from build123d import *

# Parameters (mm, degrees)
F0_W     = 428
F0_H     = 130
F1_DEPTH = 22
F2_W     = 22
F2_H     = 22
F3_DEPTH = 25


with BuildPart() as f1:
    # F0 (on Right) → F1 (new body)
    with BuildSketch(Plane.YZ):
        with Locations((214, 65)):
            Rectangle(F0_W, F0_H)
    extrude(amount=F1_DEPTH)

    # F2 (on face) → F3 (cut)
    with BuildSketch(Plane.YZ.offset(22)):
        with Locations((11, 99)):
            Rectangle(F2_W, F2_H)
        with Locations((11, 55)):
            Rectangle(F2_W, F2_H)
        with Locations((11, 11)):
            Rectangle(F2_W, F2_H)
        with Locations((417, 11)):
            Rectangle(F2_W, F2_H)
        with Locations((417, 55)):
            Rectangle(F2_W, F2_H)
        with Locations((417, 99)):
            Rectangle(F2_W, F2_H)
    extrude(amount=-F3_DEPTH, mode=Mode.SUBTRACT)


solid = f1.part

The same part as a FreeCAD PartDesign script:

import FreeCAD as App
import Part
import Sketcher

V = App.Vector
Q = App.Units.Quantity


def add_polygon(sketch, points):
    """Adds a closed chain of lines whose ends are joined by coincident constraints."""
    first, n = sketch.GeometryCount, len(points)
    for a, b in zip(points, points[1:] + points[:1]):
        sketch.addGeometry(Part.LineSegment(App.Vector(*a, 0), App.Vector(*b, 0)), False)
    for i in range(n):
        sketch.addConstraint(Sketcher.Constraint("Coincident", first + i, 2, first + (i + 1) % n, 1))

doc = App.newDocument("Part")
body = doc.addObject("PartDesign::Body", "Body")

sketch1 = body.newObject("Sketcher::SketchObject", "Sketch")
sketch1.AttachmentSupport = (doc.getObject("YZ_Plane"), [""])
sketch1.MapMode = "FlatFace"
add_polygon(sketch1, [(0, 130), (0, 0), (428, 0), (428, 130)])
sketch1.addConstraint(Sketcher.Constraint("Vertical", 0))
sketch1.addConstraint(Sketcher.Constraint("Horizontal", 1))
sketch1.addConstraint(Sketcher.Constraint("Vertical", 2))
sketch1.addConstraint(Sketcher.Constraint("Horizontal", 3))
sketch1.addConstraint(Sketcher.Constraint("Coincident", 0, 2, -1, 1))
sketch1.addConstraint(Sketcher.Constraint("DistanceX", 1, 1, 1, 2, Q("428 mm")))
sketch1.addConstraint(Sketcher.Constraint("DistanceY", 0, 2, 0, 1, Q("130 mm")))
pad1 = body.newObject("PartDesign::Pad", "Pad")
pad1.Profile = sketch1
pad1.Length = 22

sketch2 = body.newObject("Sketcher::SketchObject", "Sketch001")
sketch2.AttachmentSupport = (doc.getObject("YZ_Plane"), [""])
sketch2.MapMode = "FlatFace"
sketch2.AttachmentOffset = App.Placement(V(0, 0, 22), App.Rotation())
add_polygon(sketch2, [(0, 110), (0, 88), (22, 88), (22, 110)])
add_polygon(sketch2, [(0, 66), (0, 44), (22, 44), (22, 66)])
add_polygon(sketch2, [(0, 22), (0, 0), (22, 0), (22, 22)])
add_polygon(sketch2, [(406, 22), (406, 0), (428, 0), (428, 22)])
add_polygon(sketch2, [(406, 66), (406, 44), (428, 44), (428, 66)])
add_polygon(sketch2, [(406, 110), (406, 88), (428, 88), (428, 110)])
sketch2.addConstraint(Sketcher.Constraint("Vertical", 0))
sketch2.addConstraint(Sketcher.Constraint("Horizontal", 1))
sketch2.addConstraint(Sketcher.Constraint("Vertical", 2))
sketch2.addConstraint(Sketcher.Constraint("Horizontal", 3))
sketch2.addConstraint(Sketcher.Constraint("Vertical", 4))
sketch2.addConstraint(Sketcher.Constraint("Horizontal", 5))
sketch2.addConstraint(Sketcher.Constraint("Vertical", 6))
sketch2.addConstraint(Sketcher.Constraint("Horizontal", 7))
sketch2.addConstraint(Sketcher.Constraint("Vertical", 8))
sketch2.addConstraint(Sketcher.Constraint("Horizontal", 9))
sketch2.addConstraint(Sketcher.Constraint("Vertical", 10))
sketch2.addConstraint(Sketcher.Constraint("Horizontal", 11))
sketch2.addConstraint(Sketcher.Constraint("Vertical", 12))
sketch2.addConstraint(Sketcher.Constraint("Horizontal", 13))
sketch2.addConstraint(Sketcher.Constraint("Vertical", 14))
sketch2.addConstraint(Sketcher.Constraint("Horizontal", 15))
sketch2.addConstraint(Sketcher.Constraint("Vertical", 16))
sketch2.addConstraint(Sketcher.Constraint("Horizontal", 17))
sketch2.addConstraint(Sketcher.Constraint("Vertical", 18))
sketch2.addConstraint(Sketcher.Constraint("Horizontal", 19))
sketch2.addConstraint(Sketcher.Constraint("Vertical", 20))
sketch2.addConstraint(Sketcher.Constraint("Horizontal", 21))
sketch2.addConstraint(Sketcher.Constraint("Vertical", 22))
sketch2.addConstraint(Sketcher.Constraint("Horizontal", 23))
sketch2.addConstraint(Sketcher.Constraint("Coincident", 8, 2, -1, 1))
sketch2.addConstraint(Sketcher.Constraint("PointOnObject", 0, 2, -2))
sketch2.addConstraint(Sketcher.Constraint("PointOnObject", 4, 2, -2))
sketch2.addConstraint(Sketcher.Constraint("PointOnObject", 12, 2, -1))
sketch2.addConstraint(Sketcher.Constraint("Horizontal", 11, 2, 14, 2))
sketch2.addConstraint(Sketcher.Constraint("Horizontal", 5, 2, 16, 2))
sketch2.addConstraint(Sketcher.Constraint("Horizontal", 7, 2, 18, 2))
sketch2.addConstraint(Sketcher.Constraint("Horizontal", 1, 2, 20, 2))
sketch2.addConstraint(Sketcher.Constraint("Horizontal", 3, 2, 22, 2))
sketch2.addConstraint(Sketcher.Constraint("Vertical", 2, 2, 5, 2))
sketch2.addConstraint(Sketcher.Constraint("Vertical", 6, 2, 9, 2))
sketch2.addConstraint(Sketcher.Constraint("Vertical", 15, 2, 16, 2))
sketch2.addConstraint(Sketcher.Constraint("Vertical", 14, 2, 17, 2))
sketch2.addConstraint(Sketcher.Constraint("Vertical", 19, 2, 20, 2))
sketch2.addConstraint(Sketcher.Constraint("Vertical", 18, 2, 21, 2))
sketch2.addConstraint(Sketcher.Constraint("Equal", 11, 13))
sketch2.addConstraint(Sketcher.Constraint("Equal", 23, 0))
sketch2.addConstraint(Sketcher.Constraint("Equal", 2, 4))
sketch2.addConstraint(Sketcher.Constraint("Equal", 6, 8))
sketch2.addConstraint(Sketcher.Constraint("DistanceX", 1, 1, 1, 2, Q("22 mm")))
sketch2.addConstraint(Sketcher.Constraint("DistanceY", -1, 1, 0, 2, Q("88 mm")))
sketch2.addConstraint(Sketcher.Constraint("DistanceY", -1, 1, 4, 2, Q("44 mm")))
sketch2.addConstraint(Sketcher.Constraint("DistanceX", -1, 1, 12, 2, Q("406 mm")))
pocket1 = body.newObject("PartDesign::Pocket", "Pocket")
pocket1.Profile = sketch2
pocket1.Length = 25

doc.recompute()
